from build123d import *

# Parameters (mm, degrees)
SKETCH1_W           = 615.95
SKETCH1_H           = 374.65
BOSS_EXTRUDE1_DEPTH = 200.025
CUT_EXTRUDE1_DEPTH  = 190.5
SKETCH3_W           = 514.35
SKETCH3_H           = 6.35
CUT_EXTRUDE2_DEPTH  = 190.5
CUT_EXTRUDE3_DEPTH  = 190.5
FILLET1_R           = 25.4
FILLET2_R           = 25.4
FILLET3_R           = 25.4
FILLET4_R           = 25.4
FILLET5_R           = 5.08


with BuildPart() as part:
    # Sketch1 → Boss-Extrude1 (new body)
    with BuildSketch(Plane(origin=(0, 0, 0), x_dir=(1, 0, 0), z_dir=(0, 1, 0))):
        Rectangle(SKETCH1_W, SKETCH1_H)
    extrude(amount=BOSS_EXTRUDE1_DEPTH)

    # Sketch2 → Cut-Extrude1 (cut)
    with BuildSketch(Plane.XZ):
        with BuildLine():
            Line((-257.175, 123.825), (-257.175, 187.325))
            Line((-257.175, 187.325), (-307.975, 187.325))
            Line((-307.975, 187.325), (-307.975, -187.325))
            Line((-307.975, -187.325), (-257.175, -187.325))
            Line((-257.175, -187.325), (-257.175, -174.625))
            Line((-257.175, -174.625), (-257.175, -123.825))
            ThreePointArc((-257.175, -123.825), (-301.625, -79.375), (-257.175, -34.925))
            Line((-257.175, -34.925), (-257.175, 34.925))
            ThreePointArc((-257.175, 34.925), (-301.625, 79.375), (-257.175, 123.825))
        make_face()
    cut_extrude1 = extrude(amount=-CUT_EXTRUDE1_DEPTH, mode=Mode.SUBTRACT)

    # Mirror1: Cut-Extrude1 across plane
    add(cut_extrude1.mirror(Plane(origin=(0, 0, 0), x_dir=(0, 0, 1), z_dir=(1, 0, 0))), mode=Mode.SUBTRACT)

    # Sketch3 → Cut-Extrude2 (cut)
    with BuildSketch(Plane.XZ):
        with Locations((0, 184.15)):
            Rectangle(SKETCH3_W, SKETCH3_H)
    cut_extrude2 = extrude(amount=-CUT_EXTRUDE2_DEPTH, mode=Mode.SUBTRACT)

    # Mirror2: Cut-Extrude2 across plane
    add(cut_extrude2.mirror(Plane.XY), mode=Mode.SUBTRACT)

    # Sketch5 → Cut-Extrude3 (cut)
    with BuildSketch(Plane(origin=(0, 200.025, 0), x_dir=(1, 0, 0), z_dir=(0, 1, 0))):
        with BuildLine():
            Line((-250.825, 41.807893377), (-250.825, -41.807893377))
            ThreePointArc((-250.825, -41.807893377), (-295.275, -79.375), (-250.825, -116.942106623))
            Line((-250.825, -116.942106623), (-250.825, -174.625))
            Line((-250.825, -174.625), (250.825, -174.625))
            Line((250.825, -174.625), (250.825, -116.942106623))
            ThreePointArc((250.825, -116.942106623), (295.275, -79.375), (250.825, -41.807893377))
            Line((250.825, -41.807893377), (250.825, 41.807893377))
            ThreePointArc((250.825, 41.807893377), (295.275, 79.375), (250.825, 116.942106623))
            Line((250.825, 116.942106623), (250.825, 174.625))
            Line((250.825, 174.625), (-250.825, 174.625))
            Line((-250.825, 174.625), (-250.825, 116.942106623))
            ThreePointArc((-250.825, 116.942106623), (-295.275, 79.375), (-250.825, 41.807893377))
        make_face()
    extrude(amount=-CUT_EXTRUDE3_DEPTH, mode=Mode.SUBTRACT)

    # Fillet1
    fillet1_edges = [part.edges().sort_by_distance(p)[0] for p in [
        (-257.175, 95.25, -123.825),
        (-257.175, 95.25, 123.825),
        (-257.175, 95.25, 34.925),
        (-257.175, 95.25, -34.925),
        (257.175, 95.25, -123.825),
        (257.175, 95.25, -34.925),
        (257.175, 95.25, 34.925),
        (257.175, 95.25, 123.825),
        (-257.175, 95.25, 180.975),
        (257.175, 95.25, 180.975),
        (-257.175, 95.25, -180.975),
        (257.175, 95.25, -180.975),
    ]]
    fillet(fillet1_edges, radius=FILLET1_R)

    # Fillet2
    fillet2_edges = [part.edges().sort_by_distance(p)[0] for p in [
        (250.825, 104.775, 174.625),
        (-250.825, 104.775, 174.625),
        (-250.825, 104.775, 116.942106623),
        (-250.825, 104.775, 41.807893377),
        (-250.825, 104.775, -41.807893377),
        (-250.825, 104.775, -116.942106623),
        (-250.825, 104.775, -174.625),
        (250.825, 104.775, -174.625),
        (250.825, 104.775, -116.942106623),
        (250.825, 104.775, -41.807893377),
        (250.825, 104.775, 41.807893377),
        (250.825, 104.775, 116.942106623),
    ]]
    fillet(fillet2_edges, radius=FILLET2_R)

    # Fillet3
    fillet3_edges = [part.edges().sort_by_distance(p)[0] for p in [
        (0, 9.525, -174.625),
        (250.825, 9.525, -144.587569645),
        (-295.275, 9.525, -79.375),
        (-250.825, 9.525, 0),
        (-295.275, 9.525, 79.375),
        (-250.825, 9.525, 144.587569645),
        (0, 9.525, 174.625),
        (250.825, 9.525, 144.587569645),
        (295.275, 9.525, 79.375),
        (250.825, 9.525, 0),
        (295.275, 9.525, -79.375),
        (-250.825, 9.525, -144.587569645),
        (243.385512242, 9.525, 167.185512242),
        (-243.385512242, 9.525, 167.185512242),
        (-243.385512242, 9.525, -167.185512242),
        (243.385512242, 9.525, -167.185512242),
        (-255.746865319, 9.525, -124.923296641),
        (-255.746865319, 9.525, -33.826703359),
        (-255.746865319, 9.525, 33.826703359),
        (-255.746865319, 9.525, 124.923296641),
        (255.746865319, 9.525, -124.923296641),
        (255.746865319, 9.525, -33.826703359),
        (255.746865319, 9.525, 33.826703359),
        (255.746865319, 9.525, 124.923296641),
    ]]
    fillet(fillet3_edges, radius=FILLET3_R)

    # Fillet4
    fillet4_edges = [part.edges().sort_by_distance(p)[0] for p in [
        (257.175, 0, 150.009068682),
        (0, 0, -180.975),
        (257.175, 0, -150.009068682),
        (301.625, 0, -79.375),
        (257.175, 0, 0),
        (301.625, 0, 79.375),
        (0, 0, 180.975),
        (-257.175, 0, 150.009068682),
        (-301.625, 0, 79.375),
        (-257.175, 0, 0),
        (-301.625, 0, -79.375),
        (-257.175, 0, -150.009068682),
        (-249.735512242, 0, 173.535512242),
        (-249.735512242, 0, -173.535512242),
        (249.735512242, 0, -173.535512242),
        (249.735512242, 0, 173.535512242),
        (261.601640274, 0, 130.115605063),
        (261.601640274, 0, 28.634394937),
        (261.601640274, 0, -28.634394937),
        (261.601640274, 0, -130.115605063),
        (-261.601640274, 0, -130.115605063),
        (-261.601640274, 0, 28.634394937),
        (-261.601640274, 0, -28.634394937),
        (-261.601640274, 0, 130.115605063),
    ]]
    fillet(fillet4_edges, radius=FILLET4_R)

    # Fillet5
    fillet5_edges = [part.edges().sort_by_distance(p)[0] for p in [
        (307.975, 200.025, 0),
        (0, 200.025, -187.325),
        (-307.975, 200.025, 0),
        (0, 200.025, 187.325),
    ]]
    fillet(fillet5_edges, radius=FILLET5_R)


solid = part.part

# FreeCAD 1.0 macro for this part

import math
import FreeCAD as App
import Part
import Sketcher
from FreeCAD import Vector
Q = App.Units.Quantity


def edges_at(feature, points):
    """Names of the edges that pass closest to the given points."""
    edges = feature.Shape.Edges
    near = lambda p: min(range(len(edges)), key=lambda i: edges[i].distToShape(Part.Vertex(*p))[0])
    return sorted({f"Edge{near(p) + 1}" for p in points})

doc = App.newDocument("Part")
body = doc.addObject("PartDesign::Body", "Body")

sketch1 = doc.addObject("Sketcher::SketchObject", "Sketch")
body.addObject(sketch1)
sketch1.AttachmentSupport = (doc.XZ_Plane, [""])
sketch1.MapMode = "FlatFace"
sketch1.addGeometry([
    Part.LineSegment(Vector(-308, -187, 0), Vector(-308, 187, 0)),
    Part.LineSegment(Vector(-308, 187, 0), Vector(308, 187, 0)),
    Part.LineSegment(Vector(308, 187, 0), Vector(308, -187, 0)),
    Part.LineSegment(Vector(308, -187, 0), Vector(-308, -187, 0)),
], False)
sketch1.addConstraint([
    Sketcher.Constraint("Coincident", 0, 2, 1, 1),
    Sketcher.Constraint("Coincident", 1, 2, 2, 1),
    Sketcher.Constraint("Coincident", 2, 2, 3, 1),
    Sketcher.Constraint("Coincident", 3, 2, 0, 1),
    Sketcher.Constraint("Vertical", 0),
    Sketcher.Constraint("Horizontal", 1),
    Sketcher.Constraint("Vertical", 2),
    Sketcher.Constraint("Horizontal", 3),
    Sketcher.Constraint("Symmetric", 0, 2, 2, 2, -1, 1),
    Sketcher.Constraint("DistanceX", 1, 1, 1, 2, Q("24.25 in")),
    Sketcher.Constraint("DistanceY", 0, 1, 0, 2, Q("14.75 in")),
])
pad1 = doc.addObject("PartDesign::Pad", "Pad")
body.addObject(pad1)
pad1.Profile = sketch1
pad1.Length = Q("7.875 in")
pad1.Reversed = True

sketch2 = doc.addObject("Sketcher::SketchObject", "Sketch001")
body.addObject(sketch2)
sketch2.AttachmentSupport = (doc.XZ_Plane, [""])
sketch2.MapMode = "FlatFace"
sketch2.addGeometry([
    Part.LineSegment(Vector(-257, 124, 0), Vector(-257, 187, 0)),
    Part.LineSegment(Vector(-257, 187, 0), Vector(-308, 187, 0)),
    Part.LineSegment(Vector(-308, 187, 0), Vector(-308, -187, 0)),
    Part.LineSegment(Vector(-308, -187, 0), Vector(-257, -187, 0)),
    Part.LineSegment(Vector(-257, -187, 0), Vector(-257, -124, 0)),
    Part.ArcOfCircle(Part.Circle(Vector(-257, -79, 0), Vector(0, 0, 1), 44), math.radians(90), math.radians(270)),
    Part.LineSegment(Vector(-257, -35, 0), Vector(-257, 35, 0)),
    Part.ArcOfCircle(Part.Circle(Vector(-257, 79, 0), Vector(0, 0, 1), 44), math.radians(90), math.radians(270)),
], False)
sketch2.addConstraint([
    Sketcher.Constraint("Coincident", 0, 2, 1, 1),
    Sketcher.Constraint("Coincident", 1, 2, 2, 1),
    Sketcher.Constraint("Coincident", 2, 2, 3, 1),
    Sketcher.Constraint("Coincident", 3, 2, 4, 1),
    Sketcher.Constraint("Coincident", 4, 2, 5, 2),
    Sketcher.Constraint("Coincident", 5, 1, 6, 1),
    Sketcher.Constraint("Coincident", 6, 2, 7, 2),
    Sketcher.Constraint("Coincident", 7, 1, 0, 1),
    Sketcher.Constraint("Vertical", 0),
    Sketcher.Constraint("Horizontal", 1),
    Sketcher.Constraint("Vertical", 2),
    Sketcher.Constraint("Horizontal", 3),
    Sketcher.Constraint("Vertical", 4),
    Sketcher.Constraint("Vertical", 6),
    Sketcher.Constraint("Equal", 5, 7),
    Sketcher.Constraint("Symmetric", 5, 3, 7, 3, -1),
    Sketcher.Constraint("Symmetric", 0, 2, 3, 2, -1),
    Sketcher.Constraint("Vertical", 7, 3, 0, 2),
    Sketcher.Constraint("Vertical", 4, 2, 5, 1),
    Sketcher.Constraint("DistanceX", 1, 2, 1, 1, Q("2 in")),
    Sketcher.Constraint("Radius", 5, Q("1.75 in")),
    Sketcher.Constraint("DistanceY", 0, 1, 0, 2, Q("2.5 in")),
    Sketcher.Constraint("DistanceY", 4, 2, 7, 3, Q("8 in")),
    Sketcher.Constraint("DistanceX", 5, 3, -1, 1, Q("10.125 in")),
])
pocket1 = doc.addObject("PartDesign::Pocket", "Pocket")
body.addObject(pocket1)
pocket1.Profile = sketch2
pocket1.Length = Q("7.5 in")
doc.recompute()

mirrored = doc.addObject("PartDesign::Mirrored", "Mirrored")
body.addObject(mirrored)
mirrored.Originals = [pocket1]
mirrored.MirrorPlane = (doc.YZ_Plane, [""])
body.Tip = mirrored

sketch3 = doc.addObject("Sketcher::SketchObject", "Sketch002")
body.addObject(sketch3)
sketch3.AttachmentSupport = (doc.XZ_Plane, [""])
sketch3.MapMode = "FlatFace"
sketch3.addGeometry([
    Part.LineSegment(Vector(-257, 187, 0), Vector(-257, 181, 0)),
    Part.LineSegment(Vector(-257, 181, 0), Vector(257, 181, 0)),
    Part.LineSegment(Vector(257, 181, 0), Vector(257, 187, 0)),
    Part.LineSegment(Vector(257, 187, 0), Vector(-257, 187, 0)),
], False)
sketch3.addConstraint([
    Sketcher.Constraint("Coincident", 0, 2, 1, 1),
    Sketcher.Constraint("Coincident", 1, 2, 2, 1),
    Sketcher.Constraint("Coincident", 2, 2, 3, 1),
    Sketcher.Constraint("Coincident", 3, 2, 0, 1),
    Sketcher.Constraint("Vertical", 0),
    Sketcher.Constraint("Horizontal", 1),
    Sketcher.Constraint("Vertical", 2),
    Sketcher.Constraint("Horizontal", 3),
    Sketcher.Constraint("DistanceX", 1, 1, 1, 2, Q("20.25 in")),
    Sketcher.Constraint("DistanceY", 0, 2, 0, 1, Q("0.25 in")),
    Sketcher.Constraint("DistanceX", 0, 2, -1, 1, Q("10.125 in")),
    Sketcher.Constraint("DistanceY", -1, 1, 0, 2, Q("7.125 in")),
])
pocket2 = doc.addObject("PartDesign::Pocket", "Pocket001")
body.addObject(pocket2)
pocket2.Profile = sketch3
pocket2.Length = Q("7.5 in")
doc.recompute()

mirrored2 = doc.addObject("PartDesign::Mirrored", "Mirrored001")
body.addObject(mirrored2)
mirrored2.Originals = [pocket2]
mirrored2.MirrorPlane = (doc.XY_Plane, [""])
body.Tip = mirrored2

sketch4 = doc.addObject("Sketcher::SketchObject", "Sketch003")
body.addObject(sketch4)
sketch4.AttachmentSupport = (doc.XZ_Plane, [""])
sketch4.MapMode = "FlatFace"
sketch4.AttachmentOffset = App.Placement(Vector(0, 0, -7.875 * 25.4), App.Rotation())
sketch4.addGeometry([
    Part.LineSegment(Vector(-251, -42, 0), Vector(-251, 42, 0)),
    Part.ArcOfCircle(Part.Circle(Vector(-257, 79, 0), Vector(0, 0, 1), 38), math.radians(80), math.radians(280)),
    Part.LineSegment(Vector(-251, 117, 0), Vector(-251, 175, 0)),
    Part.LineSegment(Vector(-251, 175, 0), Vector(251, 175, 0)),
    Part.LineSegment(Vector(251, 175, 0), Vector(251, 117, 0)),
    Part.ArcOfCircle(Part.Circle(Vector(257, 79, 0), Vector(0, 0, 1), 38), math.radians(-100), math.radians(100)),
    Part.LineSegment(Vector(251, 42, 0), Vector(251, -42, 0)),
    Part.ArcOfCircle(Part.Circle(Vector(257, -79, 0), Vector(0, 0, 1), 38), math.radians(-100), math.radians(100)),
    Part.LineSegment(Vector(251, -117, 0), Vector(251, -175, 0)),
    Part.LineSegment(Vector(251, -175, 0), Vector(-251, -175, 0)),
    Part.LineSegment(Vector(-251, -175, 0), Vector(-251, -117, 0)),
    Part.ArcOfCircle(Part.Circle(Vector(-257, -79, 0), Vector(0, 0, 1), 38), math.radians(80), math.radians(280)),
], False)
sketch4.addConstraint([
    Sketcher.Constraint("Coincident", 0, 2, 1, 2),
    Sketcher.Constraint("Coincident", 1, 1, 2, 1),
    Sketcher.Constraint("Coincident", 2, 2, 3, 1),
    Sketcher.Constraint("Coincident", 3, 2, 4, 1),
    Sketcher.Constraint("Coincident", 4, 2, 5, 2),
    Sketcher.Constraint("Coincident", 5, 1, 6, 1),
    Sketcher.Constraint("Coincident", 6, 2, 7, 2),
    Sketcher.Constraint("Coincident", 7, 1, 8, 1),
    Sketcher.Constraint("Coincident", 8, 2, 9, 1),
    Sketcher.Constraint("Coincident", 9, 2, 10, 1),
    Sketcher.Constraint("Coincident", 10, 2, 11, 2),
    Sketcher.Constraint("Coincident", 11, 1, 0, 1),
    Sketcher.Constraint("Vertical", 0),
    Sketcher.Constraint("Vertical", 2),
    Sketcher.Constraint("Horizontal", 3),
    Sketcher.Constraint("Vertical", 4),
    Sketcher.Constraint("Vertical", 6),
    Sketcher.Constraint("Vertical", 8),
    Sketcher.Constraint("Horizontal", 9),
    Sketcher.Constraint("Vertical", 10),
    Sketcher.Constraint("Equal", 1, 5),
    Sketcher.Constraint("Equal", 5, 7),
    Sketcher.Constraint("Equal", 7, 11),
    Sketcher.Constraint("Symmetric", 1, 3, 7, 3, -1, 1),
    Sketcher.Constraint("Symmetric", 5, 3, 11, 3, -1, 1),
    Sketcher.Constraint("Symmetric", 2, 2, 8, 2, -1, 1),
    Sketcher.Constraint("Symmetric", 1, 3, 5, 3, -2),
    Sketcher.Constraint("Horizontal", 1, 1, 4, 2),
    Sketcher.Constraint("Horizontal", 0, 2, 5, 1),
    Sketcher.Constraint("Horizontal", 7, 1, 10, 2),
    Sketcher.Constraint("Vertical", 0, 2, 1, 1),
    Sketcher.Constraint("Radius", 1, Q("1.5 in")),
    Sketcher.Constraint("DistanceX", 0, 2, 5, 3, Q("20 in")),
    Sketcher.Constraint("DistanceY", 11, 3, 2, 2, Q("10 in")),
    Sketcher.Constraint("DistanceX", 3, 1, 3, 2, Q("19.75 in")),
    Sketcher.Constraint("DistanceY", 7, 3, 5, 3, Q("6.25 in")),
])
pocket3 = doc.addObject("PartDesign::Pocket", "Pocket002")
body.addObject(pocket3)
pocket3.Profile = sketch4
pocket3.Length = Q("7.5 in")
pocket3.Reversed = True
doc.recompute()

fillet = doc.addObject("PartDesign::Fillet", "Fillet")
body.addObject(fillet)
fillet.Base = (pocket3, edges_at(pocket3, [
    (-257.175, 95.25, -123.825),
    (-257.175, 95.25, 123.825),
    (-257.175, 95.25, 34.925),
    (-257.175, 95.25, -34.925),
    (257.175, 95.25, -123.825),
    (257.175, 95.25, -34.925),
    (257.175, 95.25, 34.925),
    (257.175, 95.25, 123.825),
    (-257.175, 95.25, 180.975),
    (257.175, 95.25, 180.975),
    (-257.175, 95.25, -180.975),
    (257.175, 95.25, -180.975),
]))
fillet.Radius = Q("1 in")
doc.recompute()

fillet2 = doc.addObject("PartDesign::Fillet", "Fillet001")
body.addObject(fillet2)
fillet2.Base = (fillet, edges_at(fillet, [
    (250.825, 104.775, 174.625),
    (-250.825, 104.775, 174.625),
    (-250.825, 104.775, 116.942),
    (-250.825, 104.775, 41.808),
    (-250.825, 104.775, -41.808),
    (-250.825, 104.775, -116.942),
    (-250.825, 104.775, -174.625),
    (250.825, 104.775, -174.625),
    (250.825, 104.775, -116.942),
    (250.825, 104.775, -41.808),
    (250.825, 104.775, 41.808),
    (250.825, 104.775, 116.942),
]))
fillet2.Radius = Q("1 in")
doc.recompute()

fillet3 = doc.addObject("PartDesign::Fillet", "Fillet002")
body.addObject(fillet3)
fillet3.Base = (fillet2, edges_at(fillet2, [
    (0, 9.525, -174.625),
    (250.825, 9.525, -144.588),
    (-295.275, 9.525, -79.375),
    (-250.825, 9.525, 0),
    (-295.275, 9.525, 79.375),
    (-250.825, 9.525, 144.588),
    (0, 9.525, 174.625),
    (250.825, 9.525, 144.588),
    (295.275, 9.525, 79.375),
    (250.825, 9.525, 0),
    (295.275, 9.525, -79.375),
    (-250.825, 9.525, -144.588),
    (243.386, 9.525, 167.186),
    (-243.386, 9.525, 167.186),
    (-243.386, 9.525, -167.186),
    (243.386, 9.525, -167.186),
    (-255.747, 9.525, -124.923),
    (-255.747, 9.525, -33.827),
    (-255.747, 9.525, 33.827),
    (-255.747, 9.525, 124.923),
    (255.747, 9.525, -124.923),
    (255.747, 9.525, -33.827),
    (255.747, 9.525, 33.827),
    (255.747, 9.525, 124.923),
]))
fillet3.Radius = Q("1 in")
doc.recompute()

fillet4 = doc.addObject("PartDesign::Fillet", "Fillet003")
body.addObject(fillet4)
fillet4.Base = (fillet3, edges_at(fillet3, [
    (257.175, 0, 150.009),
    (0, 0, -180.975),
    (257.175, 0, -150.009),
    (301.625, 0, -79.375),
    (257.175, 0, 0),
    (301.625, 0, 79.375),
    (0, 0, 180.975),
    (-257.175, 0, 150.009),
    (-301.625, 0, 79.375),
    (-257.175, 0, 0),
    (-301.625, 0, -79.375),
    (-257.175, 0, -150.009),
    (-249.736, 0, 173.536),
    (-249.736, 0, -173.536),
    (249.736, 0, -173.536),
    (249.736, 0, 173.536),
    (261.602, 0, 130.116),
    (261.602, 0, 28.634),
    (261.602, 0, -28.634),
    (261.602, 0, -130.116),
    (-261.602, 0, -130.116),
    (-261.602, 0, 28.634),
    (-261.602, 0, -28.634),
    (-261.602, 0, 130.116),
]))
fillet4.Radius = Q("1 in")
doc.recompute()

fillet5 = doc.addObject("PartDesign::Fillet", "Fillet004")
body.addObject(fillet5)
fillet5.Base = (fillet4, edges_at(fillet4, [
    (307.975, 200.025, 0),
    (0, 200.025, -187.325),
    (-307.975, 200.025, 0),
    (0, 200.025, 187.325),
]))
fillet5.Radius = Q("0.2 in")

doc.recompute()
